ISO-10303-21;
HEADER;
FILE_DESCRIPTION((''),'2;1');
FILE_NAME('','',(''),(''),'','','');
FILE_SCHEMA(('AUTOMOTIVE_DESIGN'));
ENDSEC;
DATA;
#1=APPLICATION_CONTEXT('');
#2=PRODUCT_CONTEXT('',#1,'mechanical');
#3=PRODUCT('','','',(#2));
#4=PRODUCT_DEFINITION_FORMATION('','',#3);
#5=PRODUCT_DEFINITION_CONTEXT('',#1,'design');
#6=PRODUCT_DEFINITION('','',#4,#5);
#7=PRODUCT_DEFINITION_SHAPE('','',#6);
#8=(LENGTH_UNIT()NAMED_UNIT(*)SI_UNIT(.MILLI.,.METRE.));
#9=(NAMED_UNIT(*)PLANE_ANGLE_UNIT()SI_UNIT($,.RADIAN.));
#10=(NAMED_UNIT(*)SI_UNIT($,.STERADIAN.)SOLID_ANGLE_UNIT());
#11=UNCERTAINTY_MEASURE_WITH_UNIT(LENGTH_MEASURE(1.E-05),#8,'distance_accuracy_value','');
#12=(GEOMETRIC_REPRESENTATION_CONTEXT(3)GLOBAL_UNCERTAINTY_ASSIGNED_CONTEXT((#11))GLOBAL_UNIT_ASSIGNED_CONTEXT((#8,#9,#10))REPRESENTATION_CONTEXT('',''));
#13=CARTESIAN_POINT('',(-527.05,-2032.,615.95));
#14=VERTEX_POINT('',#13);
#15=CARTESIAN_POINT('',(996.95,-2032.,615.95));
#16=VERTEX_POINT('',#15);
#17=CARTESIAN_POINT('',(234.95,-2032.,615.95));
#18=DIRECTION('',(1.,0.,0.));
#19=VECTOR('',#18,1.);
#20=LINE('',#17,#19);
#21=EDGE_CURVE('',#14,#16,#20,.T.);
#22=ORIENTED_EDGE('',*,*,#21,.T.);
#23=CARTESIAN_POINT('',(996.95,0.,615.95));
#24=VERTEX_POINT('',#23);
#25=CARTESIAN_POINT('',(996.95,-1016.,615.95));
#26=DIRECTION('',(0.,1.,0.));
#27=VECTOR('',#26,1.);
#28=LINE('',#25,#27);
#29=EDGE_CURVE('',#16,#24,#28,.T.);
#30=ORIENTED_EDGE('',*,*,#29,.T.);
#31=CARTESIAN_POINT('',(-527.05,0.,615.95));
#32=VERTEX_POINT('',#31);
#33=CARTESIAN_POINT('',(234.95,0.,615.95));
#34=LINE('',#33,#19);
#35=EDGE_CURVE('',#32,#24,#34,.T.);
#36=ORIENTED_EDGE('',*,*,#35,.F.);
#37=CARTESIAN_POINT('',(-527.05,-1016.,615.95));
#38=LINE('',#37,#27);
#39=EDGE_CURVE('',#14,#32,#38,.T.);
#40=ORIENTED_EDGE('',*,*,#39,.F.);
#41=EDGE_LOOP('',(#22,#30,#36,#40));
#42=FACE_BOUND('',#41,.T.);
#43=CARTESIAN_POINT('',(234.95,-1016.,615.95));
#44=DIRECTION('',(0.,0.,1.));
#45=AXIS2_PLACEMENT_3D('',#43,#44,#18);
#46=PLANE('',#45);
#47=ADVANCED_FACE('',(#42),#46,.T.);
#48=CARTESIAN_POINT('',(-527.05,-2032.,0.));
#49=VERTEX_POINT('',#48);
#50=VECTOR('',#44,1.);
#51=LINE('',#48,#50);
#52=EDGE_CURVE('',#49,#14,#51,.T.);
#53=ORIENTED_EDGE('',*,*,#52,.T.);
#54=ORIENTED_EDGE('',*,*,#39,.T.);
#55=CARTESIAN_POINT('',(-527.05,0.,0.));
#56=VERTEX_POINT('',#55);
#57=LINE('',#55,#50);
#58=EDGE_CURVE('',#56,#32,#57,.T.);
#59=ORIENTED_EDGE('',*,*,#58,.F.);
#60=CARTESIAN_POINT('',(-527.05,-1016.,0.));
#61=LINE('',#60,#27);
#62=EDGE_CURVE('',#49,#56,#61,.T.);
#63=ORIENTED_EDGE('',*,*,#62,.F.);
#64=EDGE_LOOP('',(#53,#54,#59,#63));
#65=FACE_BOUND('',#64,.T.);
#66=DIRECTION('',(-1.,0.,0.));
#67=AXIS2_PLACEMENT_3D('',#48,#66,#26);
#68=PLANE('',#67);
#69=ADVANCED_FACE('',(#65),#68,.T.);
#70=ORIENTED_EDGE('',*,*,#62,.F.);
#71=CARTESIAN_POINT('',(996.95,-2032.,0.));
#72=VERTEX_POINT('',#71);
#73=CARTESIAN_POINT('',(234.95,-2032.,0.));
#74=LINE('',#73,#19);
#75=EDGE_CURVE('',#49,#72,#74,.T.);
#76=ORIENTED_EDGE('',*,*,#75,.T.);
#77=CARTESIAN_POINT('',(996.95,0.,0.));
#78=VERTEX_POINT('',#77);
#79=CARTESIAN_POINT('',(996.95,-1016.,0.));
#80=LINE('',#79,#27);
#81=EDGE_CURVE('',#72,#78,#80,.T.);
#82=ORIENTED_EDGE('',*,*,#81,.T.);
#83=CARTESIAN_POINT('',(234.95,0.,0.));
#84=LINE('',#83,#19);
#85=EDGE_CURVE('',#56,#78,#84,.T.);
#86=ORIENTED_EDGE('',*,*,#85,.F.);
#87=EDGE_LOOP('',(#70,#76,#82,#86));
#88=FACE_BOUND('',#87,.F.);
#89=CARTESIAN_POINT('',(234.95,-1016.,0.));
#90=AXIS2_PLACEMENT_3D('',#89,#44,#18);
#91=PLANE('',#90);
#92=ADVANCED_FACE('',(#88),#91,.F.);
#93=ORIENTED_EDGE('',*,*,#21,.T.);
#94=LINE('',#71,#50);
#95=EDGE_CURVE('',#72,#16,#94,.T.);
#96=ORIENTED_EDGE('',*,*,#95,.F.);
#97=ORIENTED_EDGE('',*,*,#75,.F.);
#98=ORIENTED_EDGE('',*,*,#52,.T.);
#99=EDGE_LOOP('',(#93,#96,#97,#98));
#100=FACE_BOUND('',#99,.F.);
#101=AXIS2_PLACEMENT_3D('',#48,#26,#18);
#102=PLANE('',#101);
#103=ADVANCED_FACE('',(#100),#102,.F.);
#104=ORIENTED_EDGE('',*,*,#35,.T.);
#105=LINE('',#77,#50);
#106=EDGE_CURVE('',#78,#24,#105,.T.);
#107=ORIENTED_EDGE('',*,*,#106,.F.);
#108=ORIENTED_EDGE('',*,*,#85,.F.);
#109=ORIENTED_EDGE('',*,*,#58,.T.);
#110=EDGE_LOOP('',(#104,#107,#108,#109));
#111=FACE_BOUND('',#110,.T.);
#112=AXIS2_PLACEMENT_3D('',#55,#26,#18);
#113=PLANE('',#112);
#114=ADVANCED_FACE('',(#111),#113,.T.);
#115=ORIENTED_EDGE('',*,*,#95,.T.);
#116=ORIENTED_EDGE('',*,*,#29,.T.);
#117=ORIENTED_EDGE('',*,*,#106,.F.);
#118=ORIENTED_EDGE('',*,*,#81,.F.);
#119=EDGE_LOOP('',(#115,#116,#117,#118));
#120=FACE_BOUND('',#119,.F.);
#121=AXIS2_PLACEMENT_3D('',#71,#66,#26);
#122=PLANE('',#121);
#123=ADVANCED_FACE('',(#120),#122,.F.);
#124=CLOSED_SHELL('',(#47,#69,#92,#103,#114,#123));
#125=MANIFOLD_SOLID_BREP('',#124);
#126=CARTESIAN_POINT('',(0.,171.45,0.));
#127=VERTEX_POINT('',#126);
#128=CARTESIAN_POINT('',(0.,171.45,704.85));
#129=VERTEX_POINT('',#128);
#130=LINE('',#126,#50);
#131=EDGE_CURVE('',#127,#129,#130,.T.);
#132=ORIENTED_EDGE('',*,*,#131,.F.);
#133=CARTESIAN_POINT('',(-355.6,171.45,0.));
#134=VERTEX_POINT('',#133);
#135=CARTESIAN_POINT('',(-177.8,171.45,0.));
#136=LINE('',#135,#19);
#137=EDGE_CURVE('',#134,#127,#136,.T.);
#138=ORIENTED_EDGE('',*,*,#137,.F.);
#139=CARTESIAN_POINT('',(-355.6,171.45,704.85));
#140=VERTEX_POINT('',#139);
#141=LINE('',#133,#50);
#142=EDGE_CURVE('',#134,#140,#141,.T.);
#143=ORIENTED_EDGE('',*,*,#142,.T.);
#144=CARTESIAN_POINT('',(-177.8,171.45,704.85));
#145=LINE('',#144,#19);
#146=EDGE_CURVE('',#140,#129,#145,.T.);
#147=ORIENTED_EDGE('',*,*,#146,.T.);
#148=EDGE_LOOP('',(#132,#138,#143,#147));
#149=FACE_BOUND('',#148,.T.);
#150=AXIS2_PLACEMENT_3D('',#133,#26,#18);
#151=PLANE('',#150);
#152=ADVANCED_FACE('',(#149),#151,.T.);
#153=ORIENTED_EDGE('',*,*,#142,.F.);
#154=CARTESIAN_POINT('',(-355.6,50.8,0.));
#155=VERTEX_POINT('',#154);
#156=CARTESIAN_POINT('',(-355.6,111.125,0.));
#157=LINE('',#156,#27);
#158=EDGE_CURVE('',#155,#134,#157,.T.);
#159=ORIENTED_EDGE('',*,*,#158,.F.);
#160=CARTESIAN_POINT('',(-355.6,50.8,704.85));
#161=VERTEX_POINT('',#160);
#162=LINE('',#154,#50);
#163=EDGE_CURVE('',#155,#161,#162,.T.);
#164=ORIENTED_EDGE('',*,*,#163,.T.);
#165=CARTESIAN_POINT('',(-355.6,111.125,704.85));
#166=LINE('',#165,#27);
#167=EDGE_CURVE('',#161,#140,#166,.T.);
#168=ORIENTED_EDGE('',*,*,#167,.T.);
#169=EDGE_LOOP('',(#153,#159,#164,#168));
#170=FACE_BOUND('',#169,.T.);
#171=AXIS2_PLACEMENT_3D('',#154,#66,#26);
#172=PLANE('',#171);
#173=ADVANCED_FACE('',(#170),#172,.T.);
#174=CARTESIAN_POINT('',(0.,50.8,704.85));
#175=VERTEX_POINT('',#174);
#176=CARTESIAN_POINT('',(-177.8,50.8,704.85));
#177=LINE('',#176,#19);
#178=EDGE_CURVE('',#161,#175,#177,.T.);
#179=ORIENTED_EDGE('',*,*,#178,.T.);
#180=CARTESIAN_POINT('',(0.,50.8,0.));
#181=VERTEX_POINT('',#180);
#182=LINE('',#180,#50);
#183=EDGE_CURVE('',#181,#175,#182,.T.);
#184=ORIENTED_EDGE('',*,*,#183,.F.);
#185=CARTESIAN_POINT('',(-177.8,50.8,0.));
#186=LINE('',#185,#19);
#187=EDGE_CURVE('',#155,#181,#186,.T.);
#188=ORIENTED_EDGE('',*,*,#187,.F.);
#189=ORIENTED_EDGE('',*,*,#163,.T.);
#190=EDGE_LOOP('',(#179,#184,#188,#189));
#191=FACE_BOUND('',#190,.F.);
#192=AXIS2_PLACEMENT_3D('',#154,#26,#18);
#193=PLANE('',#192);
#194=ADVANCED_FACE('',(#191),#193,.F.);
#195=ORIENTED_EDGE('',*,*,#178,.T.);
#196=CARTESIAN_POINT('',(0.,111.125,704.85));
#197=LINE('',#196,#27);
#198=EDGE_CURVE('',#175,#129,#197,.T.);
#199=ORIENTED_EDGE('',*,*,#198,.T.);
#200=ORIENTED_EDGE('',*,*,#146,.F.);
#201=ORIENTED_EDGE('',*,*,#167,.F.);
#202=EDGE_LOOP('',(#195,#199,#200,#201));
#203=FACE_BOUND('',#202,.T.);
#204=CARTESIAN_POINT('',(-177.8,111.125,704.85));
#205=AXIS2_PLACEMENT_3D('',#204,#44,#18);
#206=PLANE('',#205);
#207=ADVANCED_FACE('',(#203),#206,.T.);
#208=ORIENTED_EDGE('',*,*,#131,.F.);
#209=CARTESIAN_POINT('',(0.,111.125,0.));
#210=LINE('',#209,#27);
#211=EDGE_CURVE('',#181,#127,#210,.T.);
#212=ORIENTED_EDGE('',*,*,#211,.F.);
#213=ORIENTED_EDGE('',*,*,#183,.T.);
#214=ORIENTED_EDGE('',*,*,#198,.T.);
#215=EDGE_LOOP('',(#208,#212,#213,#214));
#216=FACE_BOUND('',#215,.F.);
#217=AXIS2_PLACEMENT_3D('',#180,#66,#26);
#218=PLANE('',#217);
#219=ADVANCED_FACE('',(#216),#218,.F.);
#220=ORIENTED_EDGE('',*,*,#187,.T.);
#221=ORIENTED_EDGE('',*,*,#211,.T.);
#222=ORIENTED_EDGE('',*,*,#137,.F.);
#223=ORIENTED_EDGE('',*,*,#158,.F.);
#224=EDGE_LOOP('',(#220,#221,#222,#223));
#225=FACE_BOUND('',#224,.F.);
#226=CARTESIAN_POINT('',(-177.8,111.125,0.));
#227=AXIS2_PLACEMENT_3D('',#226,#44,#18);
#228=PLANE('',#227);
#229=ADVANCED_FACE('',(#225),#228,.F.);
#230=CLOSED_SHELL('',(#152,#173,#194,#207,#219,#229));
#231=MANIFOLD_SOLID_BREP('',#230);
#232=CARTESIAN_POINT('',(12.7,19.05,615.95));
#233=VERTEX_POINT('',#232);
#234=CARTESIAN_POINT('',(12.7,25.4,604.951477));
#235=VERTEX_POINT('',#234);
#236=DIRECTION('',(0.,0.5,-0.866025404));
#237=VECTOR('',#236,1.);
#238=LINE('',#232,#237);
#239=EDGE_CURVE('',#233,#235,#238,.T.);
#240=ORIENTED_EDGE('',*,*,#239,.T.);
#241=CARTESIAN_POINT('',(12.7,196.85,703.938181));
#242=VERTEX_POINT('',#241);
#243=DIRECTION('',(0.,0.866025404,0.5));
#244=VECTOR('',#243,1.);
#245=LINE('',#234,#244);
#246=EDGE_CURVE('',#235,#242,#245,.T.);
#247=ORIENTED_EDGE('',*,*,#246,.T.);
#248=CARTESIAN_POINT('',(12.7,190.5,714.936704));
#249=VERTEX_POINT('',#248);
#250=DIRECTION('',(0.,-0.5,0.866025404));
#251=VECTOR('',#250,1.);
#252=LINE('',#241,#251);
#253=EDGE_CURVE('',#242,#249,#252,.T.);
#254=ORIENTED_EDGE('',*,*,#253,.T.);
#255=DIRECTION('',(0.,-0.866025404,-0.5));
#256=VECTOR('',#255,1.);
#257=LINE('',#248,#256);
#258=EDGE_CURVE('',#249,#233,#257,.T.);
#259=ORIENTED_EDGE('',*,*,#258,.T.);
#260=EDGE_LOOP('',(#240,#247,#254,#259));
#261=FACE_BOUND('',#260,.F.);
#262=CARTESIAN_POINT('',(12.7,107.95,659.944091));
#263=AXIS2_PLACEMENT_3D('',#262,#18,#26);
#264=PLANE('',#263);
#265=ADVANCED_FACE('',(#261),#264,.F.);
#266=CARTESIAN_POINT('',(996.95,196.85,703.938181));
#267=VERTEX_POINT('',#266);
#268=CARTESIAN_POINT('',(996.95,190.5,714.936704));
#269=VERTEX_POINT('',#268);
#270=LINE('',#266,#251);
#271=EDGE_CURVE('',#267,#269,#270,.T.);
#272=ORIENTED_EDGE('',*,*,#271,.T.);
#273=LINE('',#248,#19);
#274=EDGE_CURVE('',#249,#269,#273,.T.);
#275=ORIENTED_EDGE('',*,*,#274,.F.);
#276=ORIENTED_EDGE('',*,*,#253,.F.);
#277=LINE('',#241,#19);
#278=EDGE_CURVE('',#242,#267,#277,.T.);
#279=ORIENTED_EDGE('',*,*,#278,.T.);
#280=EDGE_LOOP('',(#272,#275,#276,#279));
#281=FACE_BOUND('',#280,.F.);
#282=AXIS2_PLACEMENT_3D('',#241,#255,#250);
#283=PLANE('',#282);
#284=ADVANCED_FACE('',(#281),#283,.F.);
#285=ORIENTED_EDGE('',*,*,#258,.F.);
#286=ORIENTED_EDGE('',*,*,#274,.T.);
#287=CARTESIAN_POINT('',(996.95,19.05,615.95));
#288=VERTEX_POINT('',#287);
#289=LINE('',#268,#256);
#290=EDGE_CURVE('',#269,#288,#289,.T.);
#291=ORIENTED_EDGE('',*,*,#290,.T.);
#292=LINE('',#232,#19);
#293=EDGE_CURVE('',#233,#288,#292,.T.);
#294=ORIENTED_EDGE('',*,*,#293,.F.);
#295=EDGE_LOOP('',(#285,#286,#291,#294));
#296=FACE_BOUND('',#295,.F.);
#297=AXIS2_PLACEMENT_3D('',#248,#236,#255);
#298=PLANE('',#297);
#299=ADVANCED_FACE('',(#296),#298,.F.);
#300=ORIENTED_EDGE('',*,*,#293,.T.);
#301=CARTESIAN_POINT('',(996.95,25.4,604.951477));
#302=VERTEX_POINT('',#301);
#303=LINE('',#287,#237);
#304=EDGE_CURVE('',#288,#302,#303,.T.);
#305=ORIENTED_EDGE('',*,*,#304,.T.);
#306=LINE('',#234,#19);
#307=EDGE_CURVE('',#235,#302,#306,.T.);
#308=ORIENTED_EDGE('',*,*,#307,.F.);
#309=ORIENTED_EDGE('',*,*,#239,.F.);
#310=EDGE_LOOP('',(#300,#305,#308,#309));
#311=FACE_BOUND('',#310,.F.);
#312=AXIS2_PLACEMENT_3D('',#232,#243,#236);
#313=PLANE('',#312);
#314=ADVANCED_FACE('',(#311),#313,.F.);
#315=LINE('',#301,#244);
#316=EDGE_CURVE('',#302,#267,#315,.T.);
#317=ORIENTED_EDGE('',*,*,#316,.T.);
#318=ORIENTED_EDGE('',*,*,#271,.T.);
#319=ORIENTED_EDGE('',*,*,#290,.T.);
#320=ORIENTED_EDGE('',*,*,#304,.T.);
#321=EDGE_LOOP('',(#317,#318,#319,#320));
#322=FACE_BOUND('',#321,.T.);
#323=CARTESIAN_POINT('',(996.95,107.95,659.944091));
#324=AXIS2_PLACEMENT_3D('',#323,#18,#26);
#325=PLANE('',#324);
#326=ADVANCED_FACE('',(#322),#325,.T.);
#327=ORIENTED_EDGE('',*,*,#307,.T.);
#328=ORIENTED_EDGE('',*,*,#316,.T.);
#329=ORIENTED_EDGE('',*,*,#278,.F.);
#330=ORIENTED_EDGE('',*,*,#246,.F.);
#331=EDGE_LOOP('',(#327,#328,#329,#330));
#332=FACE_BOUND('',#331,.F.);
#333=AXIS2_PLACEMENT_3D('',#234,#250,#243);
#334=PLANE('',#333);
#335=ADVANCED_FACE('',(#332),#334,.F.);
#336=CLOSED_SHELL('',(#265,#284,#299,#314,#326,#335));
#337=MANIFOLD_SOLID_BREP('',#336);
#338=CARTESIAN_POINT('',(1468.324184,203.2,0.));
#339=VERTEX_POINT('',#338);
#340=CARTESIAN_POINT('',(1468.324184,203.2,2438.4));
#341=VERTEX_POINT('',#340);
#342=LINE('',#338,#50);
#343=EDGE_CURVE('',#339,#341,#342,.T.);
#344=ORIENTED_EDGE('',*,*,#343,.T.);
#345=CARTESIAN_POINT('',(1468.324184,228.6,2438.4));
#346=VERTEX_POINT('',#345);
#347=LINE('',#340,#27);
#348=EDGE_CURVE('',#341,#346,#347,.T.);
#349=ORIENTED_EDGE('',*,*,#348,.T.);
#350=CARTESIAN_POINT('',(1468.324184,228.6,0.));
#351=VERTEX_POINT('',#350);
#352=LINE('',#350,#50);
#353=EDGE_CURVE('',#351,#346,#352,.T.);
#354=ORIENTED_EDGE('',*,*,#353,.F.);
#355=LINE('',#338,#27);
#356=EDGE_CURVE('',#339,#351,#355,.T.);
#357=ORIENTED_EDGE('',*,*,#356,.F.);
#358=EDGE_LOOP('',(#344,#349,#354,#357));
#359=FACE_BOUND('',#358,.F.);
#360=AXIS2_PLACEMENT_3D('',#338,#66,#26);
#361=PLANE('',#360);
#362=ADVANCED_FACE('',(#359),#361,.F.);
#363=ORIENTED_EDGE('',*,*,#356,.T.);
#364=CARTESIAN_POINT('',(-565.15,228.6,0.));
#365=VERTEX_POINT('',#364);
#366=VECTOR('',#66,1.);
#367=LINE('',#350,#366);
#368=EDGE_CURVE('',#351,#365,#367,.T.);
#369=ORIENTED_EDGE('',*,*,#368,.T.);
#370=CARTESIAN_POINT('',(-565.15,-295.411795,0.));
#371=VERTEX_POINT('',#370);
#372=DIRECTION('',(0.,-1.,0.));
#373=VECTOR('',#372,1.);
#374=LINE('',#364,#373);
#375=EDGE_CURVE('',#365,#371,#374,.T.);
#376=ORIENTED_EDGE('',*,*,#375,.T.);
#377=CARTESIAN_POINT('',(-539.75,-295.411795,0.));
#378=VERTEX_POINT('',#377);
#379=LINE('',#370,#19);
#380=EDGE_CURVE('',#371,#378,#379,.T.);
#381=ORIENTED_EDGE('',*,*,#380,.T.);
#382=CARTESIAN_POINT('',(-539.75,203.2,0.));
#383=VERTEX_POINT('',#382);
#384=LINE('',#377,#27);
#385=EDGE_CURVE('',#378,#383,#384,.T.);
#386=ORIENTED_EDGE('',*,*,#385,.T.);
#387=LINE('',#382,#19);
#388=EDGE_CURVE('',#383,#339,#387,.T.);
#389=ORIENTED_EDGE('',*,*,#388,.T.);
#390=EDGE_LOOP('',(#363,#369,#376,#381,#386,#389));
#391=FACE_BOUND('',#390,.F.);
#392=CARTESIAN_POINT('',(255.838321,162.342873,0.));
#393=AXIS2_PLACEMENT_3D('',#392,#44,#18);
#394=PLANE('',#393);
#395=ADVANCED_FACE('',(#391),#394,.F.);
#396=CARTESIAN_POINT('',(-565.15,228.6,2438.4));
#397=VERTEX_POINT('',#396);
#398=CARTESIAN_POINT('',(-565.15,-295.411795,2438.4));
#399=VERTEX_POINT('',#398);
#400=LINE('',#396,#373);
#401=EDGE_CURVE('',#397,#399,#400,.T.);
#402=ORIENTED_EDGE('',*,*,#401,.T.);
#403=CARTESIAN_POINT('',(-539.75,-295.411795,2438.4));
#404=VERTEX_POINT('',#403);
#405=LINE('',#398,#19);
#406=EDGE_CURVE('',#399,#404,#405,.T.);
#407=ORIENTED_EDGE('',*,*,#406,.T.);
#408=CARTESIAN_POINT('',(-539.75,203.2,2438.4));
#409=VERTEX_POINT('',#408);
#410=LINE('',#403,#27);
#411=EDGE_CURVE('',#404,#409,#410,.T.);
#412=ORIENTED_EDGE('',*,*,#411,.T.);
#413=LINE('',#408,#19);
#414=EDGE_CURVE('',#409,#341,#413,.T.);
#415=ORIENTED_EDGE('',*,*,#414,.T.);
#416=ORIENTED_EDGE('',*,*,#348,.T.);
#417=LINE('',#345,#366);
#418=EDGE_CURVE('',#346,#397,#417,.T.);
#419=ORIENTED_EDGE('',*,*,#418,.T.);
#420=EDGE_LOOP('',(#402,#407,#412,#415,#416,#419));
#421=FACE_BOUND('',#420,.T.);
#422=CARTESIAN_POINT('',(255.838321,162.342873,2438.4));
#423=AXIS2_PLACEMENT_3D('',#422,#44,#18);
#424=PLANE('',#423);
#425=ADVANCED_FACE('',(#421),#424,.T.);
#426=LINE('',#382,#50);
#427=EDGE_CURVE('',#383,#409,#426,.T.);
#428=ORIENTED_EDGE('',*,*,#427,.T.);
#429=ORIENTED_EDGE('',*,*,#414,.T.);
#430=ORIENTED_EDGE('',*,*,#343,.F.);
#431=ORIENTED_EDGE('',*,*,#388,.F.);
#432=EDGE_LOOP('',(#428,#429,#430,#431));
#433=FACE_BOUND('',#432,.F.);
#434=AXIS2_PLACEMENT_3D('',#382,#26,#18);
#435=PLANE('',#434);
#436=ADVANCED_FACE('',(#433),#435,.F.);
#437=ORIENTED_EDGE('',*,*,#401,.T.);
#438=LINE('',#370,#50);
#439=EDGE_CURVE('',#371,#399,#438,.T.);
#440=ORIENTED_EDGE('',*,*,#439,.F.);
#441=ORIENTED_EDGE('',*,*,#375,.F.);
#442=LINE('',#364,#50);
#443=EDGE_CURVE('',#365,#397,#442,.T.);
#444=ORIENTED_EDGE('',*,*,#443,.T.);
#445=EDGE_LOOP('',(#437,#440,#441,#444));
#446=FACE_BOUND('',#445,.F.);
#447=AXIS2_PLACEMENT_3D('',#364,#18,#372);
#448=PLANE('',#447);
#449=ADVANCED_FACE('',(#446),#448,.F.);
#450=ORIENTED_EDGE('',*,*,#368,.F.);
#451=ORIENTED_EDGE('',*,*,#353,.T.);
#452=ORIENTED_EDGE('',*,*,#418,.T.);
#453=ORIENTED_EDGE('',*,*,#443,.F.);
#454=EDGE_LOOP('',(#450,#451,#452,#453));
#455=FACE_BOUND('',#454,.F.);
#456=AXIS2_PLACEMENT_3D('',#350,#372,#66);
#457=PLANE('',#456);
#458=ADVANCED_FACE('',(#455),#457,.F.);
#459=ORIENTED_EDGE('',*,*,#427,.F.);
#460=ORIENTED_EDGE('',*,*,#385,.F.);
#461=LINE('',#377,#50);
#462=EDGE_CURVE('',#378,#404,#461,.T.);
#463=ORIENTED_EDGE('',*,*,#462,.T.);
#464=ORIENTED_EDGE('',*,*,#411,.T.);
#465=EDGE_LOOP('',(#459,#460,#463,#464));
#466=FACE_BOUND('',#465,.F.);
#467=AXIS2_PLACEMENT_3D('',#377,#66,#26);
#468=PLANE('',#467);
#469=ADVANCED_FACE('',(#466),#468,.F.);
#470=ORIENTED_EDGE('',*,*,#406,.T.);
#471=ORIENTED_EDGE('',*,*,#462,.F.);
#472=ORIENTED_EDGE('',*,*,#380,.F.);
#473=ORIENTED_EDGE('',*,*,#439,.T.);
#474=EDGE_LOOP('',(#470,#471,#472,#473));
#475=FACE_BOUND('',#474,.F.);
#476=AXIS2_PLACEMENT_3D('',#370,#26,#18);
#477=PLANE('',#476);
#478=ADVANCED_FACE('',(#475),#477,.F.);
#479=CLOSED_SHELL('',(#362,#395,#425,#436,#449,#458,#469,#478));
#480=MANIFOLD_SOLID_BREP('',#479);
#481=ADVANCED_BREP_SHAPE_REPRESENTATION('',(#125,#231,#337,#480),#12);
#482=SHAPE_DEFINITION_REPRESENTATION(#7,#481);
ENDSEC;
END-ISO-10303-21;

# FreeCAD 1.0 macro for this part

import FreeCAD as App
import Part
import Sketcher
Q = App.Units.Quantity


def add_polygon(sketch, points):
    """Adds a closed chain of lines whose ends are joined by coincident constraints."""
    first, n = sketch.GeometryCount, len(points)
    for a, b in zip(points, points[1:] + points[:1]):
        sketch.addGeometry(Part.LineSegment(App.Vector(*a, 0), App.Vector(*b, 0)), False)
    for i in range(n):
        sketch.addConstraint(Sketcher.Constraint("Coincident", first + i, 2, first + (i + 1) % n, 1))

doc = App.newDocument("Part")
body = doc.addObject("PartDesign::Body", "Body")

sketch1 = body.newObject("Sketcher::SketchObject", "Sketch")
sketch1.AttachmentSupport = (doc.getObject("XY_Plane"), [""])
sketch1.MapMode = "FlatFace"
add_polygon(sketch1, [(-356, 171), (-356, 51), (0, 51), (0, 171)])
sketch1.addConstraint([
    Sketcher.Constraint("Vertical", 0),
    Sketcher.Constraint("Horizontal", 1),
    Sketcher.Constraint("Vertical", 2),
    Sketcher.Constraint("Horizontal", 3),
    Sketcher.Constraint("PointOnObject", 1, 2, -2),
    Sketcher.Constraint("DistanceX", 1, 1, 1, 2, Q("14 in")),
    Sketcher.Constraint("DistanceY", -1, 1, 0, 2, Q("2 in")),
    Sketcher.Constraint("DistanceY", 0, 2, 0, 1, Q("4.75 in")),
])
pad1 = body.newObject("PartDesign::Pad", "Pad")
pad1.Profile = sketch1
pad1.Length = Q("27.75 in")
body2 = doc.addObject("PartDesign::Body", "Body001")

sketch2 = body2.newObject("Sketcher::SketchObject", "Sketch001")
sketch2.AttachmentSupport = (doc.getObject("XY_Plane001"), [""])
sketch2.MapMode = "FlatFace"
add_polygon(sketch2, [(-565, -295), (-540, -295), (-540, 203), (1468, 203), (1468, 229), (-565, 229)])
sketch2.addConstraint([
    Sketcher.Constraint("Horizontal", 0),
    Sketcher.Constraint("Vertical", 1),
    Sketcher.Constraint("Horizontal", 2),
    Sketcher.Constraint("Vertical", 3),
    Sketcher.Constraint("Horizontal", 4),
    Sketcher.Constraint("Vertical", 5),
    Sketcher.Constraint("Equal", 0, 3),
    Sketcher.Constraint("DistanceX", 0, 1, 0, 2, Q("1 in")),
    Sketcher.Constraint("DistanceY", -1, 1, 1, 2, Q("8 in")),
    Sketcher.Constraint("DistanceX", 0, 2, -1, 1, Q("21.25 in")),
    Sketcher.Constraint("DistanceX", 2, 1, 2, 2, 2008.074184),
    Sketcher.Constraint("DistanceY", 1, 1, 1, 2, 498.611795),
])
pad2 = body2.newObject("PartDesign::Pad", "Pad001")
pad2.Profile = sketch2
pad2.Length = Q("96 in")
body3 = doc.addObject("PartDesign::Body", "Body002")

sketch3 = body3.newObject("Sketcher::SketchObject", "Sketch002")
sketch3.AttachmentSupport = (doc.getObject("XY_Plane002"), [""])
sketch3.MapMode = "FlatFace"
add_polygon(sketch3, [(-527, 0), (-527, -2032), (997, -2032), (997, 0)])
sketch3.addConstraint([
    Sketcher.Constraint("Vertical", 0),
    Sketcher.Constraint("Horizontal", 1),
    Sketcher.Constraint("Vertical", 2),
    Sketcher.Constraint("Horizontal", 3),
    Sketcher.Constraint("PointOnObject", 2, 2, -1),
    Sketcher.Constraint("DistanceX", 1, 1, 1, 2, Q("60 in")),
    Sketcher.Constraint("DistanceY", 0, 2, 0, 1, Q("80 in")),
    Sketcher.Constraint("DistanceX", 0, 2, -1, 1, Q("20.75 in")),
])
pad3 = body3.newObject("PartDesign::Pad", "Pad002")
pad3.Profile = sketch3
pad3.Length = Q("24.25 in")
body4 = doc.addObject("PartDesign::Body", "Body003")

sketch4 = body4.newObject("Sketcher::SketchObject", "Sketch003")
sketch4.AttachmentSupport = (doc.getObject("YZ_Plane003"), [""])
sketch4.MapMode = "FlatFace"
sketch4.AttachmentOffset = App.Placement(App.Vector(0, 0, 0.5 * 25.4), App.Rotation())
add_polygon(sketch4, [(190, 715), (19, 616), (25, 605), (197, 704)])
sketch4.addConstraint([
    Sketcher.Constraint("Perpendicular", 0, 1),
    Sketcher.Constraint("Perpendicular", 1, 2),
    Sketcher.Constraint("Perpendicular", 2, 3),
    Sketcher.Constraint("DistanceX", -1, 1, 1, 2, Q("1 in")),
    Sketcher.Constraint("Angle", 0, Q("-150 deg")),
    Sketcher.Constraint("DistanceX", 0, 2, 2, 2, Q("7 in")),
    Sketcher.Constraint("Distance", 1, Q("0.5 in")),
    Sketcher.Constraint("DistanceY", -1, 1, 0, 2, Q("24.25 in")),
])
pad4 = body4.newObject("PartDesign::Pad", "Pad003")
pad4.Profile = sketch4
pad4.Length = Q("38.75 in")

doc.recompute()
